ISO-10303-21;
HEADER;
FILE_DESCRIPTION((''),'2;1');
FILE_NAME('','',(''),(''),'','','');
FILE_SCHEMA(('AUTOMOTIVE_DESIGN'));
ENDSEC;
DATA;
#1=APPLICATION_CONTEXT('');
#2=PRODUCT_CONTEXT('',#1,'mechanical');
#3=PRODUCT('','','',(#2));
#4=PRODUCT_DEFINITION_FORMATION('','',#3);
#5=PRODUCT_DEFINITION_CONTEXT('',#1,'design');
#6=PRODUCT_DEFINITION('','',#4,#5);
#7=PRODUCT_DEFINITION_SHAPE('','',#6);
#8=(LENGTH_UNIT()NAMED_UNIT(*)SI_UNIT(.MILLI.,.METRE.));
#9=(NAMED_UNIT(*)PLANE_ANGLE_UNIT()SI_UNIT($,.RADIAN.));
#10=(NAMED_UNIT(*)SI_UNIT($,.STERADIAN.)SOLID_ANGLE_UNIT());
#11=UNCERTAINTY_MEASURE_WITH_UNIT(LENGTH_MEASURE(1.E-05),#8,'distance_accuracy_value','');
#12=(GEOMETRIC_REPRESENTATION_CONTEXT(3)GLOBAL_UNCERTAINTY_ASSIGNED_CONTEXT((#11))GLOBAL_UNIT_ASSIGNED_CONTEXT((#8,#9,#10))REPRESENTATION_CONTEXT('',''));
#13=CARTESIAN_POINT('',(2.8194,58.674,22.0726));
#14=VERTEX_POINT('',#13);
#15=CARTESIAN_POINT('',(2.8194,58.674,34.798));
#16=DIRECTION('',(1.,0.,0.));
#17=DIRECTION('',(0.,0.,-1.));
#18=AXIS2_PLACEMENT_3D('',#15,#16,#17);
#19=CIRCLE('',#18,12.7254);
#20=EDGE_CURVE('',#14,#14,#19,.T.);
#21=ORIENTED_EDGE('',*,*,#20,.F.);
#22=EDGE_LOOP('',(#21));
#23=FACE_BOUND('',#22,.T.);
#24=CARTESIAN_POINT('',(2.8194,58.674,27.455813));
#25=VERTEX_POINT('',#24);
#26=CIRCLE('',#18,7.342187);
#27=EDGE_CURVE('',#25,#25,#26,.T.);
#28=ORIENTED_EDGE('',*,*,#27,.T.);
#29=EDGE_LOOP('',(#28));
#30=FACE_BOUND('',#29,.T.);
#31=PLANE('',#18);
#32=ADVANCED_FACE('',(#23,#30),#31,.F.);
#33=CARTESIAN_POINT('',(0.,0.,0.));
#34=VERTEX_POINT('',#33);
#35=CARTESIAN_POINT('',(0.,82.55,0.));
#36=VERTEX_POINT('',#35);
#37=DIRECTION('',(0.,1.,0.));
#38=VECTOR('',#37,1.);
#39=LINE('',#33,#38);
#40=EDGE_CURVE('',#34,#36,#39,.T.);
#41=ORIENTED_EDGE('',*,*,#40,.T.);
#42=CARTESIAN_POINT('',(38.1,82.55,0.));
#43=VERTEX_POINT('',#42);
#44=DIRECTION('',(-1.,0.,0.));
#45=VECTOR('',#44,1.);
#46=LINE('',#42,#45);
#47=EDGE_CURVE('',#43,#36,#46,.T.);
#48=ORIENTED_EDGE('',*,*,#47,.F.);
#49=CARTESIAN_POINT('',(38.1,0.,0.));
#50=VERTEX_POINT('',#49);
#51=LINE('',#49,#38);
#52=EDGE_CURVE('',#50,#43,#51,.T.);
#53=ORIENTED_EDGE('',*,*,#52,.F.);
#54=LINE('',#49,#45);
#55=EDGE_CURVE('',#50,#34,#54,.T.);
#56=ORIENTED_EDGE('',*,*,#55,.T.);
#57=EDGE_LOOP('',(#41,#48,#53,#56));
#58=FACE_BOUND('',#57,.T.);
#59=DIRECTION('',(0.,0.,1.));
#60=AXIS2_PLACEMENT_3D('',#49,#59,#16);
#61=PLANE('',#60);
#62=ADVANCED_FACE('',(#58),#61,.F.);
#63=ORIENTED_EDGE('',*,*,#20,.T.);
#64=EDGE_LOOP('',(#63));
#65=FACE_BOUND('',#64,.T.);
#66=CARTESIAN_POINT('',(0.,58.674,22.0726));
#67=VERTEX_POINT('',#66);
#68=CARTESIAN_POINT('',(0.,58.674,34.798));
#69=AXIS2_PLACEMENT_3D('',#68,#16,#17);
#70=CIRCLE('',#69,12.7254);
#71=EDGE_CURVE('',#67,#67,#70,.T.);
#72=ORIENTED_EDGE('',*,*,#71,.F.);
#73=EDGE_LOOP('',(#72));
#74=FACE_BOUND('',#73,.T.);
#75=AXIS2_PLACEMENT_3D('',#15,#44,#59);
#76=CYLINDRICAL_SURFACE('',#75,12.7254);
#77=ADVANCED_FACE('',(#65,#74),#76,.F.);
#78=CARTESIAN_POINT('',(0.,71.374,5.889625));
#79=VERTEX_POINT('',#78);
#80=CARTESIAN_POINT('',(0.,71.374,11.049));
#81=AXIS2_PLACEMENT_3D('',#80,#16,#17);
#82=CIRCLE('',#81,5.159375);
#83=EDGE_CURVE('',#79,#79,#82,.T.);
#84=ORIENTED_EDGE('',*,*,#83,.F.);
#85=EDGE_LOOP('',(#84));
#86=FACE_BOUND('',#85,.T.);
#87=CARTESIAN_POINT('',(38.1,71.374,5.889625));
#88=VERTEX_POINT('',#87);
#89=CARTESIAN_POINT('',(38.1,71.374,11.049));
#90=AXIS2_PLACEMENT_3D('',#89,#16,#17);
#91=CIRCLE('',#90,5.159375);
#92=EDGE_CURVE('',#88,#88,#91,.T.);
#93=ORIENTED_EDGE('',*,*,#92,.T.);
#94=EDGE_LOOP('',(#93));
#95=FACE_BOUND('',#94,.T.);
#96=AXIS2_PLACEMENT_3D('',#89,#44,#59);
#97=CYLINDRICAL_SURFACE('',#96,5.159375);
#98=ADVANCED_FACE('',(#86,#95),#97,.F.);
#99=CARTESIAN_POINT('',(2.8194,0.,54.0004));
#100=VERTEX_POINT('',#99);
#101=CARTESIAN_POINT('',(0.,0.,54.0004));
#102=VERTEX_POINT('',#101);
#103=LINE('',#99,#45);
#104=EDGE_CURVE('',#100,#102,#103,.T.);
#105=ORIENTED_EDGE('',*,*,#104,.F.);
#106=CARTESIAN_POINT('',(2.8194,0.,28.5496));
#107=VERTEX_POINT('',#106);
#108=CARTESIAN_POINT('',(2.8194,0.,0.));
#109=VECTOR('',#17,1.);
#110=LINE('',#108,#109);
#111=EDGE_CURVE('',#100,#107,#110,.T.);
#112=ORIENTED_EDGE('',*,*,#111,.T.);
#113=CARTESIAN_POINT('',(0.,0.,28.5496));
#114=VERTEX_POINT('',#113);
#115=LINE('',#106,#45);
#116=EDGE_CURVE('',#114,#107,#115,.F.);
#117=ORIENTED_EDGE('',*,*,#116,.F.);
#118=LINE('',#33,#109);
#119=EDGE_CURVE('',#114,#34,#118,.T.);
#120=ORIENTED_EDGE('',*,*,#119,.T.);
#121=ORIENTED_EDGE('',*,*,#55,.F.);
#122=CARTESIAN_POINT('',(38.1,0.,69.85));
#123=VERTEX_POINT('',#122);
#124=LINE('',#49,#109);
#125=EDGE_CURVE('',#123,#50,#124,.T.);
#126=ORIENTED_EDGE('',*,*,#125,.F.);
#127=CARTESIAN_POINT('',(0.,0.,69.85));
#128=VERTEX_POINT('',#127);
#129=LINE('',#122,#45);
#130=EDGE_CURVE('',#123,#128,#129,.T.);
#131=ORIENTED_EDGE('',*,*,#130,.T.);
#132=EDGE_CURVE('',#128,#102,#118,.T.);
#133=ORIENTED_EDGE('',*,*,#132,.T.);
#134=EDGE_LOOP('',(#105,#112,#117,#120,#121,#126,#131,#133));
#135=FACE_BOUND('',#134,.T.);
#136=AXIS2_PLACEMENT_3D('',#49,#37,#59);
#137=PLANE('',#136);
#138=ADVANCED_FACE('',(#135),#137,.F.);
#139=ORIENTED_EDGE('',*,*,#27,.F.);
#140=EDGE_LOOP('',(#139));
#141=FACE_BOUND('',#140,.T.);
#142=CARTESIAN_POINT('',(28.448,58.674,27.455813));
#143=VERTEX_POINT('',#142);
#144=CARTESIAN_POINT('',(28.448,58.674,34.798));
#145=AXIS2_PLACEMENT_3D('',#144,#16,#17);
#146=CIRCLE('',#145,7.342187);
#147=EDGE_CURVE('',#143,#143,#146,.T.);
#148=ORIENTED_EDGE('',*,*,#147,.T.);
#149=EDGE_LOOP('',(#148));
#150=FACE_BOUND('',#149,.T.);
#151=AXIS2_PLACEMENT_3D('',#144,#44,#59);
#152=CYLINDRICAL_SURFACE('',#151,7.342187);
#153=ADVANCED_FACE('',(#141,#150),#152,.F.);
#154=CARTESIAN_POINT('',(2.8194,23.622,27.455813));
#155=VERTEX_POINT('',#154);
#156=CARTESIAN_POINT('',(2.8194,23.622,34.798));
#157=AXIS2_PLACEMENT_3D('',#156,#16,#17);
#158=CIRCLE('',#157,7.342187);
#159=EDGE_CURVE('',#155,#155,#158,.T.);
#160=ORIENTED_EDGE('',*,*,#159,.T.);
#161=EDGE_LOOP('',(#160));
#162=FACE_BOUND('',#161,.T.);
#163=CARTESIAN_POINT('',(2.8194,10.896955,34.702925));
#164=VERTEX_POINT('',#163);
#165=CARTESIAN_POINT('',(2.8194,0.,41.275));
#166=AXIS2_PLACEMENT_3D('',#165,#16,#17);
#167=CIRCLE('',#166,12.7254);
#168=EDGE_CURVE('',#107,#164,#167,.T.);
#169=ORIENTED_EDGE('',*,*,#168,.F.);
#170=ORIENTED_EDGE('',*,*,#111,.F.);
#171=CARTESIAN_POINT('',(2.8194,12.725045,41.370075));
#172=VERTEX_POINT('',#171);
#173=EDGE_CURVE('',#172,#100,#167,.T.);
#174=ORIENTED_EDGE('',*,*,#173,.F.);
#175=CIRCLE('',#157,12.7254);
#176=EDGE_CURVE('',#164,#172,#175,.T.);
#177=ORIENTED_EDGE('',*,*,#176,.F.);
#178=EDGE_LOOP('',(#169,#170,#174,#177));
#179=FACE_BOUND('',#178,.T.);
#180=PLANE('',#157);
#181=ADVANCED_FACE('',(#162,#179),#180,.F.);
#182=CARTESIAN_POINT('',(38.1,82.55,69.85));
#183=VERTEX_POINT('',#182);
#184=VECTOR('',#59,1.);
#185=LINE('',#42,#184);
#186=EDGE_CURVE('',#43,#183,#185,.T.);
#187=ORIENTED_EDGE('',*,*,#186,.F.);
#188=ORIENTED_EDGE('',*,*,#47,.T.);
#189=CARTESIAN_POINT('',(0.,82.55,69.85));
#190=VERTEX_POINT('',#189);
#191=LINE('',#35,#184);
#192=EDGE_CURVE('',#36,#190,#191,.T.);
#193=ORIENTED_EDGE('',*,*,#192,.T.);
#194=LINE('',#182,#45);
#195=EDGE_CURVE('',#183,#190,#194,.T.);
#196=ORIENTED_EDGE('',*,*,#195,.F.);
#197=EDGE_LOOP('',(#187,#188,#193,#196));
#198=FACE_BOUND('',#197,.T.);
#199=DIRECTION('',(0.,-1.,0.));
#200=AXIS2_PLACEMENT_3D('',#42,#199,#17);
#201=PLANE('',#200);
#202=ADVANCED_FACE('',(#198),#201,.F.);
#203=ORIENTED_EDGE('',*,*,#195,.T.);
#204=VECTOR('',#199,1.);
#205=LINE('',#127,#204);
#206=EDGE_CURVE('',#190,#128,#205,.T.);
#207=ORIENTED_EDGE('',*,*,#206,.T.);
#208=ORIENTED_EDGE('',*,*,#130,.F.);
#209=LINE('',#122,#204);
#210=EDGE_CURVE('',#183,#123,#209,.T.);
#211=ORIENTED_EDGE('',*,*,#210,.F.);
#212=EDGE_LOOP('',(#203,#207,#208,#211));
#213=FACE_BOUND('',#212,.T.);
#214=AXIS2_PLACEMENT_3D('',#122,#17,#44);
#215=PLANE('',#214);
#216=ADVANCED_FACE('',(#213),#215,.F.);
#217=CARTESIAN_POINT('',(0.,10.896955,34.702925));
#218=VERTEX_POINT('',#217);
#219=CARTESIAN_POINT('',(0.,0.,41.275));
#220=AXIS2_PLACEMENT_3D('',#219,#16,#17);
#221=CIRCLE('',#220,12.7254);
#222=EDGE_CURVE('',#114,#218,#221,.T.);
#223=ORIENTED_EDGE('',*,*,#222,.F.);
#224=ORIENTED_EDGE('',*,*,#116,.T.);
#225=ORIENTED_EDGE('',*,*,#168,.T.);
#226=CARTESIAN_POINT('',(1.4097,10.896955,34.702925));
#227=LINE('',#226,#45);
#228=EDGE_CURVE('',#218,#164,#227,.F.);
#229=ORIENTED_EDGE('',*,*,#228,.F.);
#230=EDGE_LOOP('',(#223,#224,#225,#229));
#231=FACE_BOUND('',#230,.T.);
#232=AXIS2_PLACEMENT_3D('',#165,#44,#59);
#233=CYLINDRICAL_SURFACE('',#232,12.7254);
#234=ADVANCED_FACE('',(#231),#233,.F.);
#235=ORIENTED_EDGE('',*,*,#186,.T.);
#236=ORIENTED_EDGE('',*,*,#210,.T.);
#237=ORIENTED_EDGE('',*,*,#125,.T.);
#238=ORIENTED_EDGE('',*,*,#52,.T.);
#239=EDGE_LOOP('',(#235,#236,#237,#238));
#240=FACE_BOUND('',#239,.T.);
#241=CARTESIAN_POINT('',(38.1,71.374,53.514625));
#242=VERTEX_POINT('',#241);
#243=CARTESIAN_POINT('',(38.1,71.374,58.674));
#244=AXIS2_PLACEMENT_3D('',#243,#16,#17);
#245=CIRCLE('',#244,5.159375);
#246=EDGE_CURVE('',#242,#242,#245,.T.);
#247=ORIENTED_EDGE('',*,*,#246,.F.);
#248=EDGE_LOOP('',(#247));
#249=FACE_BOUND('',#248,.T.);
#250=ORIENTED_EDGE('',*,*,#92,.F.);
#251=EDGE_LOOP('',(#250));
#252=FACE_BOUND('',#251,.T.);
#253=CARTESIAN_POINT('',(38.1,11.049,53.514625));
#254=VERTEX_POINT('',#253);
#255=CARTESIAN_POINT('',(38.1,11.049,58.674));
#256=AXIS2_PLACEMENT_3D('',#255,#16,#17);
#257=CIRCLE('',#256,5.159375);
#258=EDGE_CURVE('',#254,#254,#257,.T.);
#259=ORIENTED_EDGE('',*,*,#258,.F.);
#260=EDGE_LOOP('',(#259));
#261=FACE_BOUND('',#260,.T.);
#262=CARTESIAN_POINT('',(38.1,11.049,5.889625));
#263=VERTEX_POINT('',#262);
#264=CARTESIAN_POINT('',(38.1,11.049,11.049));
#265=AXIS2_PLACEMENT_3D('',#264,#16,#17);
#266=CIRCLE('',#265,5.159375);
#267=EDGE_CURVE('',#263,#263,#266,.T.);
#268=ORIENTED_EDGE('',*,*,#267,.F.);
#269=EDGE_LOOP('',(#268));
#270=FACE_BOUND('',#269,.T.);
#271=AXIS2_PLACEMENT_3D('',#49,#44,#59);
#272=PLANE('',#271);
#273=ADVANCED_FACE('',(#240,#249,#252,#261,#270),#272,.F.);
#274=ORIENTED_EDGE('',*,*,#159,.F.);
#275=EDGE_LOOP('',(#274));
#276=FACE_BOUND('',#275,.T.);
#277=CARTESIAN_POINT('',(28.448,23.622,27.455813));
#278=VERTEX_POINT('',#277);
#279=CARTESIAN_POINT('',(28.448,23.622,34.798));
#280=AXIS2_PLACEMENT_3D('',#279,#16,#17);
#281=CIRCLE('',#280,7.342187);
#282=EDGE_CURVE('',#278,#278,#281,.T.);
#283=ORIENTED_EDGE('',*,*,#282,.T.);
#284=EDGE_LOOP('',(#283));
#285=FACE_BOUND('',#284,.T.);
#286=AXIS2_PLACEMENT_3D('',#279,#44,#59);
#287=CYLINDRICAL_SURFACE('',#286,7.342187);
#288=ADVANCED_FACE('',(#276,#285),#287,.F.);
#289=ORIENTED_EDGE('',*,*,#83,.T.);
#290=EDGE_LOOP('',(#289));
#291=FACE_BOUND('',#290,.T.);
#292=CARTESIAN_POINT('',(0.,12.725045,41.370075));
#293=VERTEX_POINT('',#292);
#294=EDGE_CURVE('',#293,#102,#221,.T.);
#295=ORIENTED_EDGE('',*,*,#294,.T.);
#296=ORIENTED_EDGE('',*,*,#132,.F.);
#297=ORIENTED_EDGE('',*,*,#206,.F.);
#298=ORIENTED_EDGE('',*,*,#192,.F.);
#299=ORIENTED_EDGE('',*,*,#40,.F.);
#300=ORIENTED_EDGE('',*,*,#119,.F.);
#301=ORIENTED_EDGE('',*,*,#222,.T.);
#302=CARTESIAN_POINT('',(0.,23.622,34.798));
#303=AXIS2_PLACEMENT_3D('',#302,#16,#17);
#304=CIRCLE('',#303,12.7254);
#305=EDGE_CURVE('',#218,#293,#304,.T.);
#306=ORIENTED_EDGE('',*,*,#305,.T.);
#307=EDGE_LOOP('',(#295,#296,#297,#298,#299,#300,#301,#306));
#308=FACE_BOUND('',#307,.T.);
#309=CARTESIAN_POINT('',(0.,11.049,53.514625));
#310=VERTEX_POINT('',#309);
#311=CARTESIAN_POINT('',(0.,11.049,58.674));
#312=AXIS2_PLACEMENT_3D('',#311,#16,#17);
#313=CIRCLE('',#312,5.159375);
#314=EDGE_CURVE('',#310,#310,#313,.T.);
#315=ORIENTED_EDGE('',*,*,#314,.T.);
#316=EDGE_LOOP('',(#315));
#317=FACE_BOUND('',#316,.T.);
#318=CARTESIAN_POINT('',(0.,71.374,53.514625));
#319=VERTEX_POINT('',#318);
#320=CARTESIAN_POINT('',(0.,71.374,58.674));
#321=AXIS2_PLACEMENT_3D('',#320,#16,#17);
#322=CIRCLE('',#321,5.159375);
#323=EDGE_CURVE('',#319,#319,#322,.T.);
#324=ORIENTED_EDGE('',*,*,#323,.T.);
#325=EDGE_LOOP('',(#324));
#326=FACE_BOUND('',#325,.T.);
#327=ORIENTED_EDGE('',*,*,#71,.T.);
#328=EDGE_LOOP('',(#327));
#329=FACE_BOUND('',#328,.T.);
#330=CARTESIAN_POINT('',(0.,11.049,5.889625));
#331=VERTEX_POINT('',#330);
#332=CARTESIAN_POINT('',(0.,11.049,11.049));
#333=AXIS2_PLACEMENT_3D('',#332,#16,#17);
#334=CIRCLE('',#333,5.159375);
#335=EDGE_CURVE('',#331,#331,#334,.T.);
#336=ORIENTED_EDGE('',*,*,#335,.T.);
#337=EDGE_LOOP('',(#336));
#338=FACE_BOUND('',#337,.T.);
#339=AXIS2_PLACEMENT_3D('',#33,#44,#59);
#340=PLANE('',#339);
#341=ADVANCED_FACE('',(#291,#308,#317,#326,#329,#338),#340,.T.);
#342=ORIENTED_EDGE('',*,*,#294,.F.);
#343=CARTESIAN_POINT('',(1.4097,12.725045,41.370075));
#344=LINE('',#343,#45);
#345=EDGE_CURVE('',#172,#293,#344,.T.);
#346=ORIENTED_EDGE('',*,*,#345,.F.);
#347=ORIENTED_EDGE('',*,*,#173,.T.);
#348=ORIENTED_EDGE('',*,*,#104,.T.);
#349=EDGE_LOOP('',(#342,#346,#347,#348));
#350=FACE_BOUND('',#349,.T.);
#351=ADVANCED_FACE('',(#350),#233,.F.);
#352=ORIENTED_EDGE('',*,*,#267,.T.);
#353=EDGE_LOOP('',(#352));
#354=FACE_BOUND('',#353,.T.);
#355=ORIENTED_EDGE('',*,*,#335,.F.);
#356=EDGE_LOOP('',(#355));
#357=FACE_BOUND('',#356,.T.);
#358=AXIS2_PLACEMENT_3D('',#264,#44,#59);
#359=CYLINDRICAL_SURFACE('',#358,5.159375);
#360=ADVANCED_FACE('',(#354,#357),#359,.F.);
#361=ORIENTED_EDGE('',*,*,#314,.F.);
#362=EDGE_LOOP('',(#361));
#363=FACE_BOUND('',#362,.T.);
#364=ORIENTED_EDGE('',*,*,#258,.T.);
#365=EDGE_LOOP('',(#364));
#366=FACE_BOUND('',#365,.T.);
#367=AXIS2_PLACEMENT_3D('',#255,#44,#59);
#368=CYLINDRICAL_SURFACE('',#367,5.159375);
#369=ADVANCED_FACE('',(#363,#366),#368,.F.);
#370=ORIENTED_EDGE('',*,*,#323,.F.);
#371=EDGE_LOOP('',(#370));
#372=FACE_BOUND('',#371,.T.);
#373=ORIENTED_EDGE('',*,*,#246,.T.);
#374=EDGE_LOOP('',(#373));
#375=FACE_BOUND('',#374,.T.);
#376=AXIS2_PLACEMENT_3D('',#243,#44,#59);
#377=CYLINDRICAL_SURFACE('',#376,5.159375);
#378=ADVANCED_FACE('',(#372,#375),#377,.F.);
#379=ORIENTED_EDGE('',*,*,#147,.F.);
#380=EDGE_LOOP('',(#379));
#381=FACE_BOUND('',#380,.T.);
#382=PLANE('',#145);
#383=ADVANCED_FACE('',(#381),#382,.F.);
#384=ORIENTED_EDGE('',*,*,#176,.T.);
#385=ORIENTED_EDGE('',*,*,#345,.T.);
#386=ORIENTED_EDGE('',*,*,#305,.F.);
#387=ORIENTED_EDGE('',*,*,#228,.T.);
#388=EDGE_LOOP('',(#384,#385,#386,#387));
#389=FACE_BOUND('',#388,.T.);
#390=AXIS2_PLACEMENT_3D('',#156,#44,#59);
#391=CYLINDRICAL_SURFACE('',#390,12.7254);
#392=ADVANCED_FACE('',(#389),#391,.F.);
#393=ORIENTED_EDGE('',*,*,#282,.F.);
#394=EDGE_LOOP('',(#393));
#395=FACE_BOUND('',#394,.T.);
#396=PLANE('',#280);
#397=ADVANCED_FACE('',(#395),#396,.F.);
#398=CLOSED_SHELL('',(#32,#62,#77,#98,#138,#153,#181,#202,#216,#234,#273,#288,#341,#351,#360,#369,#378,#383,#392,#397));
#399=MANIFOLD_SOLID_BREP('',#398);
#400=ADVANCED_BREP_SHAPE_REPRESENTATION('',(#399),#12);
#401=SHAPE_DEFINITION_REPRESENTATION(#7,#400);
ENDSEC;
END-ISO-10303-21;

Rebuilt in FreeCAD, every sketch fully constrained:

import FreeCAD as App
import Part
import Sketcher
from FreeCAD import Vector
Q = App.Units.Quantity

doc = App.newDocument("Part")
params = doc.addObject("Spreadsheet::Sheet", "Params")
for row, (alias, value) in enumerate([
    ("sketch1_width", "3.25 in"),
    ("sketch1_height", "2.75 in"),
    ("pad1_length", "1.5 in"),
    ("sketch2_diameter", "0.40625 in"),
    ("sketch3_diameter", "0.578125 in"),
    ("pocket2_length", "1.12 in"),
    ("sketch4_diameter", "1.002 in"),
    ("pocket3_length", "0.111 in"),
    ("sketch5_diameter", "1.002 in"),
    ("pocket4_length", "0.111 in"),
], start=1):
    params.set(f"A{row}", alias)
    params.set(f"B{row}", "=" + value)
    params.setAlias(f"B{row}", alias)

body = doc.addObject("PartDesign::Body", "Body")

# Sketch on YZ plane
sketch1 = body.newObject("Sketcher::SketchObject", "Sketch")
sketch1.AttachmentSupport = (doc.getObject("YZ_Plane"), [""])
sketch1.MapMode = "FlatFace"
sketch1.addGeometry([
    Part.LineSegment(Vector(0, 70, 0), Vector(0, 0, 0)),
    Part.LineSegment(Vector(0, 0, 0), Vector(83, 0, 0)),
    Part.LineSegment(Vector(83, 0, 0), Vector(83, 70, 0)),
    Part.LineSegment(Vector(83, 70, 0), Vector(0, 70, 0)),
], False)
sketch1.addConstraint([
    Sketcher.Constraint("Coincident", 0, 2, 1, 1),
    Sketcher.Constraint("Coincident", 1, 2, 2, 1),
    Sketcher.Constraint("Coincident", 2, 2, 3, 1),
    Sketcher.Constraint("Coincident", 3, 2, 0, 1),
    Sketcher.Constraint("Vertical", 0),
    Sketcher.Constraint("Horizontal", 1),
    Sketcher.Constraint("Vertical", 2),
    Sketcher.Constraint("Horizontal", 3),
    Sketcher.Constraint("Coincident", 0, 2, -1, 1),
    Sketcher.Constraint("DistanceX", 1, 1, 1, 2, Q("3.25 in")),
    Sketcher.Constraint("DistanceY", 0, 2, 0, 1, Q("2.75 in")),
])
sketch1.setExpression("Constraints[9]", "Params.sketch1_width")
sketch1.setExpression("Constraints[10]", "Params.sketch1_height")
pad1 = body.newObject("PartDesign::Pad", "Pad")
pad1.Profile = sketch1
pad1.setExpression("Length", "Params.pad1_length")

# Sketch on YZ plane
sketch2 = body.newObject("Sketcher::SketchObject", "Sketch001")
sketch2.AttachmentSupport = (doc.getObject("YZ_Plane"), [""])
sketch2.MapMode = "FlatFace"
sketch2.addGeometry([
    Part.Circle(Vector(11, 11, 0), Vector(0, 0, 1), 5),
    Part.Circle(Vector(71, 11, 0), Vector(0, 0, 1), 5),
    Part.Circle(Vector(11, 59, 0), Vector(0, 0, 1), 5),
    Part.Circle(Vector(71, 59, 0), Vector(0, 0, 1), 5),
], False)
sketch2.addConstraint([
    Sketcher.Constraint("Equal", 0, 1),
    Sketcher.Constraint("Equal", 1, 2),
    Sketcher.Constraint("Equal", 2, 3),
    Sketcher.Constraint("Horizontal", 0, 3, 1, 3),
    Sketcher.Constraint("Horizontal", 2, 3, 3, 3),
    Sketcher.Constraint("Vertical", 0, 3, 2, 3),
    Sketcher.Constraint("Vertical", 1, 3, 3, 3),
    Sketcher.Constraint("Diameter", 0, Q("0.40625 in")),
    Sketcher.Constraint("DistanceX", -1, 1, 1, 3, Q("2.81 in")),
    Sketcher.Constraint("DistanceY", -1, 1, 2, 3, Q("2.31 in")),
    Sketcher.Constraint("DistanceX", -1, 1, 0, 3, Q("0.435 in")),
    Sketcher.Constraint("DistanceY", -1, 1, 0, 3, Q("0.435 in")),
])
sketch2.setExpression("Constraints[7]", "Params.sketch2_diameter")
pocket1 = body.newObject("PartDesign::Pocket", "Pocket")
pocket1.Profile = sketch2
pocket1.Type = "ThroughAll"
pocket1.Reversed = True

# Sketch on YZ plane
sketch3 = body.newObject("Sketcher::SketchObject", "Sketch002")
sketch3.AttachmentSupport = (doc.getObject("YZ_Plane"), [""])
sketch3.MapMode = "FlatFace"
sketch3.addGeometry([
    Part.Circle(Vector(24, 35, 0), Vector(0, 0, 1), 7),
    Part.Circle(Vector(59, 35, 0), Vector(0, 0, 1), 7),
], False)
sketch3.addConstraint([
    Sketcher.Constraint("Equal", 0, 1),
    Sketcher.Constraint("Horizontal", 0, 3, 1, 3),
    Sketcher.Constraint("Diameter", 0, Q("0.578125 in")),
    Sketcher.Constraint("DistanceX", -1, 1, 0, 3, Q("0.93 in")),
    Sketcher.Constraint("DistanceY", -1, 1, 0, 3, Q("1.37 in")),
    Sketcher.Constraint("DistanceX", -1, 1, 1, 3, Q("2.31 in")),
])
sketch3.setExpression("Constraints[2]", "Params.sketch3_diameter")
pocket2 = body.newObject("PartDesign::Pocket", "Pocket001")
pocket2.Profile = sketch3
pocket2.setExpression("Length", "Params.pocket2_length")
pocket2.Reversed = True

# Sketch on YZ plane
sketch4 = body.newObject("Sketcher::SketchObject", "Sketch003")
sketch4.AttachmentSupport = (doc.getObject("YZ_Plane"), [""])
sketch4.MapMode = "FlatFace"
sketch4.addGeometry([
    Part.Circle(Vector(24, 35, 0), Vector(0, 0, 1), 13),
    Part.Circle(Vector(59, 35, 0), Vector(0, 0, 1), 13),
], False)
sketch4.addConstraint([
    Sketcher.Constraint("Equal", 0, 1),
    Sketcher.Constraint("Horizontal", 0, 3, 1, 3),
    Sketcher.Constraint("Diameter", 0, Q("1.002 in")),
    Sketcher.Constraint("DistanceX", -1, 1, 0, 3, Q("0.93 in")),
    Sketcher.Constraint("DistanceY", -1, 1, 0, 3, Q("1.37 in")),
    Sketcher.Constraint("DistanceX", -1, 1, 1, 3, Q("2.31 in")),
])
sketch4.setExpression("Constraints[2]", "Params.sketch4_diameter")
pocket3 = body.newObject("PartDesign::Pocket", "Pocket002")
pocket3.Profile = sketch4
pocket3.setExpression("Length", "Params.pocket3_length")
pocket3.Reversed = True

# Sketch on YZ plane
sketch5 = body.newObject("Sketcher::SketchObject", "Sketch004")
sketch5.AttachmentSupport = (doc.getObject("YZ_Plane"), [""])
sketch5.MapMode = "FlatFace"
sketch5.addGeometry(Part.Circle(Vector(0, 41, 0), Vector(0, 0, 1), 13), False)
sketch5.addConstraint([
    Sketcher.Constraint("PointOnObject", 0, 3, -2),
    Sketcher.Constraint("Diameter", 0, Q("1.002 in")),
    Sketcher.Constraint("DistanceY", -1, 1, 0, 3, Q("1.625 in")),
])
sketch5.setExpression("Constraints[1]", "Params.sketch5_diameter")
pocket4 = body.newObject("PartDesign::Pocket", "Pocket003")
pocket4.Profile = sketch5
pocket4.setExpression("Length", "Params.pocket4_length")
pocket4.Reversed = True

doc.recompute()
